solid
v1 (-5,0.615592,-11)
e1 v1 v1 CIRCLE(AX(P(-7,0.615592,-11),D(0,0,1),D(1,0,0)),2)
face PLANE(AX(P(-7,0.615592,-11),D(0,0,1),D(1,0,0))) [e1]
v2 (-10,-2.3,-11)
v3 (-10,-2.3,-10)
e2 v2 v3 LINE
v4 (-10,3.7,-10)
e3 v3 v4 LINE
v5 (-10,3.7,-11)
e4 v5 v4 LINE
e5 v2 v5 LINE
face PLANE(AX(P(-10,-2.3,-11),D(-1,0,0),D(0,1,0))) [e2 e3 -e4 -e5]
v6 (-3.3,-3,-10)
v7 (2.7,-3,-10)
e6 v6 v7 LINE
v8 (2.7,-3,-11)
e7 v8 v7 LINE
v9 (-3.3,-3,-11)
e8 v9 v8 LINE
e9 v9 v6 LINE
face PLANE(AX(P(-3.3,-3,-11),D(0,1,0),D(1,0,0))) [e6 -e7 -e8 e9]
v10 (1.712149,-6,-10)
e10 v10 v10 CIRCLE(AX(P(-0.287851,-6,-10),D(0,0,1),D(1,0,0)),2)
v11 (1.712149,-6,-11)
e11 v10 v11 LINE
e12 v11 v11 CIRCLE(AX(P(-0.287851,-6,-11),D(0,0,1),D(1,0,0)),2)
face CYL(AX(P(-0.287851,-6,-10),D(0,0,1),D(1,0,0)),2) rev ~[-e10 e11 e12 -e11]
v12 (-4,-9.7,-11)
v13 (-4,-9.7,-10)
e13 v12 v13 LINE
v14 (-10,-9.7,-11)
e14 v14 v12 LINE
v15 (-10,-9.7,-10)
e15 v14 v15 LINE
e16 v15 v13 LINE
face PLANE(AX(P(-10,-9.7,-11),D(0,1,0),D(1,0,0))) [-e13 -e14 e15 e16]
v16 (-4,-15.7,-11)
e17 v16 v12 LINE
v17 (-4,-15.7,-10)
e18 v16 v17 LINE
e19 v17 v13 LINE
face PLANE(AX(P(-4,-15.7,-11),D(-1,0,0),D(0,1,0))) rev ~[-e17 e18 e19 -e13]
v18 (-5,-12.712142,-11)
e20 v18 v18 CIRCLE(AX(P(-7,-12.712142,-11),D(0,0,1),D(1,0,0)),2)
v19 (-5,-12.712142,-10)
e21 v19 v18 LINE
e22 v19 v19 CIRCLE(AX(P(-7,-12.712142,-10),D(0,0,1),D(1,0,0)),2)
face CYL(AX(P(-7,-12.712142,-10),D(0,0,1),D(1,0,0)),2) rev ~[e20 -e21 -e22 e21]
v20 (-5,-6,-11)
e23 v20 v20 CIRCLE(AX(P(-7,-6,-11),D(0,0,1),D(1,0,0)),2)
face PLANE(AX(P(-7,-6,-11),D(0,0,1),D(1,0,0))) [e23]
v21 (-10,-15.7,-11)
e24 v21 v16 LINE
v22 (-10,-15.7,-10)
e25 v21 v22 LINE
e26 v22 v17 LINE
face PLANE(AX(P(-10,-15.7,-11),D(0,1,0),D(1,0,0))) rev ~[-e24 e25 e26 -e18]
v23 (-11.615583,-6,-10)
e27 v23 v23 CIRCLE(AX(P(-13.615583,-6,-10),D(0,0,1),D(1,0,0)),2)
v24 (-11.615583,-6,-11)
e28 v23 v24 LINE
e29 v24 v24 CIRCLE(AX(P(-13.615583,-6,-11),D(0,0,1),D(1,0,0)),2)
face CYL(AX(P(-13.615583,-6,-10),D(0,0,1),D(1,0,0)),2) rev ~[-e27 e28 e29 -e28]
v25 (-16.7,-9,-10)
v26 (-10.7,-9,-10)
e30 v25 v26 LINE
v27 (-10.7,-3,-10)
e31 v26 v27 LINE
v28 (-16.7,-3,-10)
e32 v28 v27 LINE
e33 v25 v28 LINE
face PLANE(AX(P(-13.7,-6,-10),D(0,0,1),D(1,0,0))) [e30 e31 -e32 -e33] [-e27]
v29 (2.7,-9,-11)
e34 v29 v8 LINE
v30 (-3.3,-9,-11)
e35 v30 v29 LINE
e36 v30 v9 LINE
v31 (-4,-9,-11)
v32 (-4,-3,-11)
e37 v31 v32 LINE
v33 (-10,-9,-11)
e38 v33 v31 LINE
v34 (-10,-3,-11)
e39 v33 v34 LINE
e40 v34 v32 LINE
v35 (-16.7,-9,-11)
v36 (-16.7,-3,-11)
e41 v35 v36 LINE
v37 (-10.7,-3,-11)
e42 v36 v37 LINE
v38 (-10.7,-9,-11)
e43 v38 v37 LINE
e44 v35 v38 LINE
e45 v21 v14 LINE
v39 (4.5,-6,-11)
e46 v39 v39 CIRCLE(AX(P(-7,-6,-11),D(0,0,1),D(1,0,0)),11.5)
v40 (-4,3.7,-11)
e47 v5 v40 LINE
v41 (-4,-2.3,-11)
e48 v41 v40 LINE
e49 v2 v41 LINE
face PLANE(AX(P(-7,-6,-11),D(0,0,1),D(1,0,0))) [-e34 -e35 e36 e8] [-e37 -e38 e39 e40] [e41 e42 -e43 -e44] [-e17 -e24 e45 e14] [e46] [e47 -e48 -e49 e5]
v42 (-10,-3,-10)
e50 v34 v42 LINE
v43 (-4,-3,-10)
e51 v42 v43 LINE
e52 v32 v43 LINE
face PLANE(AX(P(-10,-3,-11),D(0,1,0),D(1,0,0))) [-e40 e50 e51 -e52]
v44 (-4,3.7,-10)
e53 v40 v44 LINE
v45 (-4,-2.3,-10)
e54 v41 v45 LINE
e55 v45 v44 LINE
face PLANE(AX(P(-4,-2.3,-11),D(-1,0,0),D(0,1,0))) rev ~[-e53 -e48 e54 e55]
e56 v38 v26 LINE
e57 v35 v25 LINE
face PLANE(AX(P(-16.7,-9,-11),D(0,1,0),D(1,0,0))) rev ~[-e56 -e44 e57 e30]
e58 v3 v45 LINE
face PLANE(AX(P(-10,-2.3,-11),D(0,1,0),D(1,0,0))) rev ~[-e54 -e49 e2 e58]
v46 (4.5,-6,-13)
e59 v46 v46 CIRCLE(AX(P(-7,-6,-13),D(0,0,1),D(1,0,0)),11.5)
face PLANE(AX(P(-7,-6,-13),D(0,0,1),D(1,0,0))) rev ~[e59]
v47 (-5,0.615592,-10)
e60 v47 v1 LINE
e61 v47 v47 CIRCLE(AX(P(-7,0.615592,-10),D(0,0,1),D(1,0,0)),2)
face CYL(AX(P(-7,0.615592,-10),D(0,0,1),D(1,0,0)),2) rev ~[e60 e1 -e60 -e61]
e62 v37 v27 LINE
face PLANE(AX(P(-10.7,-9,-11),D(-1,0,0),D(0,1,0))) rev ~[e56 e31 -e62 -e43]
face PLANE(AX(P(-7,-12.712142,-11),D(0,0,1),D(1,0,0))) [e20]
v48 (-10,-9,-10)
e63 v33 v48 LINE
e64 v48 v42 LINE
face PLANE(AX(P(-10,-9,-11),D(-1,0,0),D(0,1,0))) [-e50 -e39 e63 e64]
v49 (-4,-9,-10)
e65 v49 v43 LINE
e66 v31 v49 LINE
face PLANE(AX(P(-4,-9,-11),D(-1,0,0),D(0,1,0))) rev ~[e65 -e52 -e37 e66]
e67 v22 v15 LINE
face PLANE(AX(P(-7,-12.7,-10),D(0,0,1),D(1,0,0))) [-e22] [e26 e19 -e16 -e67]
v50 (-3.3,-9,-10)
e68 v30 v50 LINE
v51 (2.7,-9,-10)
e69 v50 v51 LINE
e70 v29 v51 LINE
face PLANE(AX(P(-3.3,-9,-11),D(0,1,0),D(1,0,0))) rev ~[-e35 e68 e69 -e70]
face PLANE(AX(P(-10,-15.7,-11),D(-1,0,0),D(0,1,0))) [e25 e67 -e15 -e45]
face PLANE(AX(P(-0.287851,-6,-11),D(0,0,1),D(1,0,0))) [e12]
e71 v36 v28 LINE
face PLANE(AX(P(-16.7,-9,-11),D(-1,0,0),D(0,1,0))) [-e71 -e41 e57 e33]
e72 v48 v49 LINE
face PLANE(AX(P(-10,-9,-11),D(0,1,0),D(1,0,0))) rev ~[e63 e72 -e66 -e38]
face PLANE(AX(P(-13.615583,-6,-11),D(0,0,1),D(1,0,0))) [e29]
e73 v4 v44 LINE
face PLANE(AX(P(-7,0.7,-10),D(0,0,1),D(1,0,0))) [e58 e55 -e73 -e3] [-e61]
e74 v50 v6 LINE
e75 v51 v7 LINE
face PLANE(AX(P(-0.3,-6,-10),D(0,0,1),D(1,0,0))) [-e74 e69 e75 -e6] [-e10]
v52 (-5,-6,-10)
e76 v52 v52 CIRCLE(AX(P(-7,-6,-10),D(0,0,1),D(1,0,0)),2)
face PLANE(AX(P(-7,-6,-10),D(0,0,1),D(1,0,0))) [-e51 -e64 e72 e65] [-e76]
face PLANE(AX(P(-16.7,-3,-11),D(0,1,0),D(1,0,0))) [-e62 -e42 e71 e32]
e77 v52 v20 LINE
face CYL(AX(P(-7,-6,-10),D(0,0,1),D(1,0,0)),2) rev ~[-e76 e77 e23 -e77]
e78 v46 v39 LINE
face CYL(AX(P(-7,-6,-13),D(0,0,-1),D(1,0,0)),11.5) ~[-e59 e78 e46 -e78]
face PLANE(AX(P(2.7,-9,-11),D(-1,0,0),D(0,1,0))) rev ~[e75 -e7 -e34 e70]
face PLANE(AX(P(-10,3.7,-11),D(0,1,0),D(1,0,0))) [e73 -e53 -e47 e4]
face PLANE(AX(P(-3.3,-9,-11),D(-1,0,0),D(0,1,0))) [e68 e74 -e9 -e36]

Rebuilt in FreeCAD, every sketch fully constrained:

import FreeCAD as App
import Part
import Sketcher
from FreeCAD import Vector


def add_polygon(sketch, points):
    """Adds a closed chain of lines whose ends are joined by coincident constraints."""
    first, n = sketch.GeometryCount, len(points)
    for a, b in zip(points, points[1:] + points[:1]):
        sketch.addGeometry(Part.LineSegment(App.Vector(*a, 0), App.Vector(*b, 0)), False)
    for i in range(n):
        sketch.addConstraint(Sketcher.Constraint("Coincident", first + i, 2, first + (i + 1) % n, 1))

doc = App.newDocument("Part")
params = doc.addObject("Spreadsheet::Sheet", "Params")
for row, (alias, value) in enumerate([
    ("sketch1_diameter", "23 mm"),
    ("pad1_length", "2 mm"),
    ("sketch2_width", "6 mm"),
    ("pad2_length", "1 mm"),
    ("sketch3_diameter", "4 mm"),
    ("pocket1_length", "1 mm"),
    ("sketch4_width", "6 mm"),
    ("pad3_length", "1 mm"),
    ("sketch5_diameter", "4 mm"),
    ("pocket2_length", "1 mm"),
], start=1):
    params.set(f"A{row}", alias)
    params.set(f"B{row}", "=" + value)
    params.setAlias(f"B{row}", alias)

body = doc.addObject("PartDesign::Body", "Body")

# Sketch on XY plane
sketch1 = body.newObject("Sketcher::SketchObject", "Sketch")
sketch1.AttachmentSupport = (doc.getObject("XY_Plane"), [""])
sketch1.MapMode = "FlatFace"
sketch1.addGeometry(Part.Circle(Vector(0, 0, 0), Vector(0, 0, 1), 12), False)
sketch1.addConstraint(Sketcher.Constraint("Coincident", 0, 3, -1, 1))
sketch1.addConstraint(Sketcher.Constraint("Diameter", 0, 23.0))
sketch1.setExpression("Constraints[1]", "Params.sketch1_diameter")
pad1 = body.newObject("PartDesign::Pad", "Pad")
pad1.Profile = sketch1
pad1.setExpression("Length", "Params.pad1_length")

# Sketch on XY plane
sketch2 = body.newObject("Sketcher::SketchObject", "Sketch001")
sketch2.AttachmentSupport = (doc.getObject("XY_Plane"), [""])
sketch2.MapMode = "FlatFace"
sketch2.AttachmentOffset = App.Placement(Vector(0, 0, 2), App.Rotation())
add_polygon(sketch2, [(-3, 3), (-3, -3), (3, -3), (3, 3)])  # lines 0-3
sketch2.addConstraint(Sketcher.Constraint("Vertical", 0))
sketch2.addConstraint(Sketcher.Constraint("Horizontal", 1))
sketch2.addConstraint(Sketcher.Constraint("Vertical", 2))
sketch2.addConstraint(Sketcher.Constraint("Horizontal", 3))
sketch2.addConstraint(Sketcher.Constraint("Symmetric", 0, 2, 2, 2, -1, 1))
sketch2.addConstraint(Sketcher.Constraint("Equal", 3, 0))
sketch2.addConstraint(Sketcher.Constraint("DistanceX", 1, 1, 1, 2, 6.0))
sketch2.setExpression("Constraints[10]", "Params.sketch2_width")
pad2 = body.newObject("PartDesign::Pad", "Pad001")
pad2.Profile = sketch2
pad2.setExpression("Length", "Params.pad2_length")

# Sketch on XY plane
sketch3 = body.newObject("Sketcher::SketchObject", "Sketch002")
sketch3.AttachmentSupport = (doc.getObject("XY_Plane"), [""])
sketch3.MapMode = "FlatFace"
sketch3.AttachmentOffset = App.Placement(Vector(0, 0, 3), App.Rotation())
sketch3.addGeometry(Part.Circle(Vector(0, 0, 0), Vector(0, 0, 1), 2), False)
sketch3.addConstraint(Sketcher.Constraint("Coincident", 0, 3, -1, 1))
sketch3.addConstraint(Sketcher.Constraint("Diameter", 0, 4.0))
sketch3.setExpression("Constraints[1]", "Params.sketch3_diameter")
pocket1 = body.newObject("PartDesign::Pocket", "Pocket")
pocket1.Profile = sketch3
pocket1.setExpression("Length", "Params.pocket1_length")

# Sketch on XY plane
sketch4 = body.newObject("Sketcher::SketchObject", "Sketch003")
sketch4.AttachmentSupport = (doc.getObject("XY_Plane"), [""])
sketch4.MapMode = "FlatFace"
sketch4.AttachmentOffset = App.Placement(Vector(0, 0, 2), App.Rotation())
add_polygon(sketch4, [(-3, 10), (-3, 4), (3, 4), (3, 10)])  # lines 0-3
add_polygon(sketch4, [(-10, 3), (-10, -3), (-4, -3), (-4, 3)])  # lines 4-7
add_polygon(sketch4, [(-3, -4), (-3, -10), (3, -10), (3, -4)])  # lines 8-11
add_polygon(sketch4, [(4, 3), (4, -3), (10, -3), (10, 3)])  # lines 12-15
sketch4.addConstraint(Sketcher.Constraint("Vertical", 0))
sketch4.addConstraint(Sketcher.Constraint("Horizontal", 1))
sketch4.addConstraint(Sketcher.Constraint("Vertical", 2))
sketch4.addConstraint(Sketcher.Constraint("Horizontal", 3))
sketch4.addConstraint(Sketcher.Constraint("Vertical", 4))
sketch4.addConstraint(Sketcher.Constraint("Horizontal", 5))
sketch4.addConstraint(Sketcher.Constraint("Vertical", 6))
sketch4.addConstraint(Sketcher.Constraint("Horizontal", 7))
sketch4.addConstraint(Sketcher.Constraint("Vertical", 8))
sketch4.addConstraint(Sketcher.Constraint("Horizontal", 9))
sketch4.addConstraint(Sketcher.Constraint("Vertical", 10))
sketch4.addConstraint(Sketcher.Constraint("Horizontal", 11))
sketch4.addConstraint(Sketcher.Constraint("Vertical", 12))
sketch4.addConstraint(Sketcher.Constraint("Horizontal", 13))
sketch4.addConstraint(Sketcher.Constraint("Vertical", 14))
sketch4.addConstraint(Sketcher.Constraint("Horizontal", 15))
sketch4.addConstraint(Sketcher.Constraint("Symmetric", 2, 2, 8, 2, -1, 1))
sketch4.addConstraint(Sketcher.Constraint("Symmetric", 0, 2, 10, 2, -1, 1))
sketch4.addConstraint(Sketcher.Constraint("Symmetric", 6, 2, 12, 2, -1, 1))
sketch4.addConstraint(Sketcher.Constraint("Symmetric", 4, 2, 14, 2, -1, 1))
sketch4.addConstraint(Sketcher.Constraint("Horizontal", 5, 2, 12, 2))
sketch4.addConstraint(Sketcher.Constraint("Vertical", 3, 2, 8, 2))
sketch4.addConstraint(Sketcher.Constraint("Equal", 3, 5))
sketch4.addConstraint(Sketcher.Constraint("Equal", 15, 0))
sketch4.addConstraint(Sketcher.Constraint("Equal", 2, 4))
sketch4.addConstraint(Sketcher.Constraint("DistanceX", 1, 1, 1, 2, 6.0))
sketch4.addConstraint(Sketcher.Constraint("DistanceY", -1, 1, 0, 2, 3.7))
sketch4.addConstraint(Sketcher.Constraint("DistanceX", 4, 2, -1, 1, 9.7))
sketch4.setExpression("Constraints[41]", "Params.sketch4_width")
pad3 = body.newObject("PartDesign::Pad", "Pad002")
pad3.Profile = sketch4
pad3.setExpression("Length", "Params.pad3_length")

# Sketch on XY plane
sketch5 = body.newObject("Sketcher::SketchObject", "Sketch004")
sketch5.AttachmentSupport = (doc.getObject("XY_Plane"), [""])
sketch5.MapMode = "FlatFace"
sketch5.AttachmentOffset = App.Placement(Vector(0, 0, 3), App.Rotation())
sketch5.addGeometry(Part.Circle(Vector(0, 6.6, 0), Vector(0, 0, 1), 2), False)
sketch5.addGeometry(Part.Circle(Vector(-6.6, 0, 0), Vector(0, 0, 1), 2), False)
sketch5.addGeometry(Part.Circle(Vector(6.7, 0, 0), Vector(0, 0, 1), 2), False)
sketch5.addGeometry(Part.Circle(Vector(0, -6.7, 0), Vector(0, 0, 1), 2), False)
sketch5.addConstraint(Sketcher.Constraint("Equal", 0, 1))
sketch5.addConstraint(Sketcher.Constraint("Equal", 1, 2))
sketch5.addConstraint(Sketcher.Constraint("Equal", 2, 3))
sketch5.addConstraint(Sketcher.Constraint("PointOnObject", 0, 3, -2))
sketch5.addConstraint(Sketcher.Constraint("PointOnObject", 1, 3, -1))
sketch5.addConstraint(Sketcher.Constraint("PointOnObject", 2, 3, -1))
sketch5.addConstraint(Sketcher.Constraint("PointOnObject", 3, 3, -2))
sketch5.addConstraint(Sketcher.Constraint("Diameter", 0, 4.0))
sketch5.addConstraint(Sketcher.Constraint("DistanceX", -1, 1, 2, 3, 6.712149))
sketch5.addConstraint(Sketcher.Constraint("DistanceY", -1, 1, 0, 3, 6.615592))
sketch5.addConstraint(Sketcher.Constraint("DistanceX", 1, 3, -1, 1, 6.615583))
sketch5.addConstraint(Sketcher.Constraint("DistanceY", 3, 3, -1, 1, 6.712142))
sketch5.setExpression("Constraints[7]", "Params.sketch5_diameter")
pocket2 = body.newObject("PartDesign::Pocket", "Pocket001")
pocket2.Profile = sketch5
pocket2.setExpression("Length", "Params.pocket2_length")
body2 = doc.addObject("PartDesign::Body", "Body001")
doc.recompute()

body.Placement = App.Placement(Vector(-7, -6, -13), App.Rotation(Vector(0, 0, 1), 0))
boolean = body2.newObject("PartDesign::Boolean", "Boolean")
boolean.Type = "Fuse"
boolean.addObjects([body])

doc.recompute()
